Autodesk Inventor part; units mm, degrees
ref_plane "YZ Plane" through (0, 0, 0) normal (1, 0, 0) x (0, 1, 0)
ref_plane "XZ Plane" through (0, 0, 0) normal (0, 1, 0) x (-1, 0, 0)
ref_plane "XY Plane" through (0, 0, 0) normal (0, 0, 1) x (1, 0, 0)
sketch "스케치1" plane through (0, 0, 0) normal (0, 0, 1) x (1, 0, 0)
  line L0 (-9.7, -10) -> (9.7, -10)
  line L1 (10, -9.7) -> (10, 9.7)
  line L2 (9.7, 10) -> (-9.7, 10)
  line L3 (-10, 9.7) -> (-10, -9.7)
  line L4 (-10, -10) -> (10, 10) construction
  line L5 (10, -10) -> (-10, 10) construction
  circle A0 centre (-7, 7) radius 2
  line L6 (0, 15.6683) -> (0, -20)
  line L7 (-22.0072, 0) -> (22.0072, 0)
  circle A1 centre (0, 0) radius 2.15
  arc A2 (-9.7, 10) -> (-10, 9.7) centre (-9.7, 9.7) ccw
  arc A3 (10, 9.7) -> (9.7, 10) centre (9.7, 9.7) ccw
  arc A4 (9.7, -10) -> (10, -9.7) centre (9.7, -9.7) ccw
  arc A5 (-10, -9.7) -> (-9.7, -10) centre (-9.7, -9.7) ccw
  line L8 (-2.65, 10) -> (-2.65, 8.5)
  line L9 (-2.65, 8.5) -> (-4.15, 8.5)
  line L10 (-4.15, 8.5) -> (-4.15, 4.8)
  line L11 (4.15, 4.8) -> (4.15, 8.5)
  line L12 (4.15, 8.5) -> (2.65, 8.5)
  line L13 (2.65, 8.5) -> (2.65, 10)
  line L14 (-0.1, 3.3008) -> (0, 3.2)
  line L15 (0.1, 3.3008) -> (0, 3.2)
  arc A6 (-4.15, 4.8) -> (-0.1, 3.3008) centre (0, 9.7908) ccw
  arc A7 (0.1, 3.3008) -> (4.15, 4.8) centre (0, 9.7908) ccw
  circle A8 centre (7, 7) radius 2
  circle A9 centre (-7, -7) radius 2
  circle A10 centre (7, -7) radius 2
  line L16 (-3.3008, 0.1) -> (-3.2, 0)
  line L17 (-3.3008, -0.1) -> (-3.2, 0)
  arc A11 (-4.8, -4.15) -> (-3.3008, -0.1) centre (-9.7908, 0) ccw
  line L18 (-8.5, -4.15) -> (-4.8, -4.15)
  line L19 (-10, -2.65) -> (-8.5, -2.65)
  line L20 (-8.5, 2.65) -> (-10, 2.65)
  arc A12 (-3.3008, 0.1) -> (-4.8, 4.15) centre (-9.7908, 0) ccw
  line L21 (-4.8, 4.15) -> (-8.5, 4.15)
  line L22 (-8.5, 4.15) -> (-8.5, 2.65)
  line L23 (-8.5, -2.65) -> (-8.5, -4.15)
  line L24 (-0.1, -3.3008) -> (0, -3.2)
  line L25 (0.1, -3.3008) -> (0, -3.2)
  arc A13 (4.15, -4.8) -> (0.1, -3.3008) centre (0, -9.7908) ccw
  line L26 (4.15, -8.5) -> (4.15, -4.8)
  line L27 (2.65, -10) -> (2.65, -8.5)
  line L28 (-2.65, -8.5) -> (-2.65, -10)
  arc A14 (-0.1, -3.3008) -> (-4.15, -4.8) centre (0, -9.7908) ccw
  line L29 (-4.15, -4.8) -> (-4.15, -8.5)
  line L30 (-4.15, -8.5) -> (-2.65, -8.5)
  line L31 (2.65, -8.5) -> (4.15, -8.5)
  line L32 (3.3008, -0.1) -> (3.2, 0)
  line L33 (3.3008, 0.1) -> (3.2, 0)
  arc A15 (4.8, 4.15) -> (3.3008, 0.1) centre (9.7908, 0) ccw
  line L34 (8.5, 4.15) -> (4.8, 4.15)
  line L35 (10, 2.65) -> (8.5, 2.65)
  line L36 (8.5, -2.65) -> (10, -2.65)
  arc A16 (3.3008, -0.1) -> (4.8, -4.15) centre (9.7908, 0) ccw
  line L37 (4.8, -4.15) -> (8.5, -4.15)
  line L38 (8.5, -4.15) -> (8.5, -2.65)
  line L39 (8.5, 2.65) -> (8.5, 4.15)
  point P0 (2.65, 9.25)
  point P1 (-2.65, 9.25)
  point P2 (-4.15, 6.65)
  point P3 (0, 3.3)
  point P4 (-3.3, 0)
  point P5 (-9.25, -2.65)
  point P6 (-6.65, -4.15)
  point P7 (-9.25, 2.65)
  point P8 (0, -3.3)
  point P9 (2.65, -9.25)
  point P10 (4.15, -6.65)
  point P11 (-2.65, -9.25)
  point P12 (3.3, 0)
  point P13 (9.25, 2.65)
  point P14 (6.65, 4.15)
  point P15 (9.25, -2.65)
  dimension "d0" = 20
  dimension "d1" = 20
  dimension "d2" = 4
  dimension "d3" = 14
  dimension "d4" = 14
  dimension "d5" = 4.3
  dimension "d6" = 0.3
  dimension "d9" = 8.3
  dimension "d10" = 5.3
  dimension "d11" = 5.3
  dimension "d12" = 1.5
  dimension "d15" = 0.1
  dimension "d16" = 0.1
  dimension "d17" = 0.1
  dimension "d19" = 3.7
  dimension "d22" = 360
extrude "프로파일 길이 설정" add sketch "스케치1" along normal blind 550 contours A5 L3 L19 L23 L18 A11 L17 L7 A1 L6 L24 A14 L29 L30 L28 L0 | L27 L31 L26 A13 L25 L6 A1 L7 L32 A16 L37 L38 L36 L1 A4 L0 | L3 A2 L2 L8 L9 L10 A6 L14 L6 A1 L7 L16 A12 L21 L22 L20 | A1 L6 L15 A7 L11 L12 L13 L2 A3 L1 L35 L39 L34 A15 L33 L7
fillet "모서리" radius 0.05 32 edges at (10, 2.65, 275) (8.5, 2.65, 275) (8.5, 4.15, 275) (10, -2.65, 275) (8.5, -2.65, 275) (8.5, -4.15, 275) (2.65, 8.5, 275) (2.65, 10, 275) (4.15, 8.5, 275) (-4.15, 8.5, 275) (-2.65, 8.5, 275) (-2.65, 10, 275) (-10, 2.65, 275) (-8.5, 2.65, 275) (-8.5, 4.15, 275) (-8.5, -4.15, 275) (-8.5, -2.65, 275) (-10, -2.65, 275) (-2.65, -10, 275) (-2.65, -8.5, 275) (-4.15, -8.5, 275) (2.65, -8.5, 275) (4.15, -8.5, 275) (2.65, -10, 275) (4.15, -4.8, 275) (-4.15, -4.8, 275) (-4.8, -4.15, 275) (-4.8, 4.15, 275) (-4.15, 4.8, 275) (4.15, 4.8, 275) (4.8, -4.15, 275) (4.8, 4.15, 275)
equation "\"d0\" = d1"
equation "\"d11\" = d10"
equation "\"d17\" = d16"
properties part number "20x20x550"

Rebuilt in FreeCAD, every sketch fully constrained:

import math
import FreeCAD as App
import Part
import Sketcher


def edges_at(feature, points):
    """Names of the edges that pass closest to the given points."""
    edges = feature.Shape.Edges
    near = lambda p: min(range(len(edges)), key=lambda i: edges[i].distToShape(Part.Vertex(*p))[0])
    return sorted({f"Edge{near(p) + 1}" for p in points})

doc = App.newDocument("Part")
params = doc.addObject("Spreadsheet::Sheet", "Params")
for row, (alias, value) in enumerate([
    ("sketch1_diameter", "4 mm"),
    ("sketch1_diameter2", "4.3 mm"),
    ("sketch1_radius", "0.3 mm"),
    ("sketch1_width", "1.5 mm"),
    ("sketch1_width2", "3.7 mm"),
    ("pad1_length", "550 mm"),
    ("fillet_radius", "0.05 mm"),
], start=1):
    params.set(f"A{row}", alias)
    params.set(f"B{row}", "=" + value)
    params.setAlias(f"B{row}", alias)

body = doc.addObject("PartDesign::Body", "Body")

sketch1 = body.newObject("Sketcher::SketchObject", "Sketch")
sketch1.AttachmentSupport = (doc.getObject("XY_Plane"), [""])
sketch1.MapMode = "FlatFace"
sketch1.addGeometry([
    Part.ArcOfCircle(Part.Circle(App.Vector(-9.7, -9.7, 0), App.Vector(0, 0, 1), 0.3), math.radians(180), math.radians(270)),
    Part.LineSegment(App.Vector(-9.7, -10, 0), App.Vector(-2.65, -10, 0)),
    Part.LineSegment(App.Vector(-2.65, -10, 0), App.Vector(-2.65, -8.5, 0)),
    Part.LineSegment(App.Vector(-2.65, -8.5, 0), App.Vector(-4.15, -8.5, 0)),
    Part.LineSegment(App.Vector(-4.15, -8.5, 0), App.Vector(-4.15, -4.8, 0)),
    Part.ArcOfCircle(Part.Circle(App.Vector(0, -9.7908, 0), App.Vector(0, 0, 1), 6.490808), math.radians(90.882762), math.radians(129.74454)),
    Part.LineSegment(App.Vector(-0.1, -3.3008, 0), App.Vector(0, -3.2, 0)),
    Part.LineSegment(App.Vector(0, -3.2, 0), App.Vector(0.1, -3.3008, 0)),
    Part.ArcOfCircle(Part.Circle(App.Vector(0, -9.7908, 0), App.Vector(0, 0, 1), 6.49077), math.radians(50.25546), math.radians(89.117238)),
    Part.LineSegment(App.Vector(4.15, -4.8, 0), App.Vector(4.15, -8.5, 0)),
    Part.LineSegment(App.Vector(4.15, -8.5, 0), App.Vector(2.65, -8.5, 0)),
    Part.LineSegment(App.Vector(2.65, -8.5, 0), App.Vector(2.65, -10, 0)),
    Part.LineSegment(App.Vector(2.65, -10, 0), App.Vector(9.7, -10, 0)),
    Part.ArcOfCircle(Part.Circle(App.Vector(9.7, -9.7, 0), App.Vector(0, 0, 1), 0.3), math.radians(-90), math.radians(0)),
    Part.LineSegment(App.Vector(10, -9.7, 0), App.Vector(10, -2.65, 0)),
    Part.LineSegment(App.Vector(10, -2.65, 0), App.Vector(8.5, -2.65, 0)),
    Part.LineSegment(App.Vector(8.5, -2.65, 0), App.Vector(8.5, -4.15, 0)),
    Part.LineSegment(App.Vector(8.5, -4.15, 0), App.Vector(4.8, -4.15, 0)),
    Part.ArcOfCircle(Part.Circle(App.Vector(9.7908, 0, 0), App.Vector(0, 0, 1), 6.490808), math.radians(-179.117238), math.radians(-140.25546)),
    Part.LineSegment(App.Vector(3.3008, -0.1, 0), App.Vector(3.2, 0, 0)),
    Part.LineSegment(App.Vector(3.2, 0, 0), App.Vector(3.3008, 0.1, 0)),
    Part.ArcOfCircle(Part.Circle(App.Vector(9.7908, 0, 0), App.Vector(0, 0, 1), 6.49077), math.radians(140.25546), math.radians(179.117238)),
    Part.LineSegment(App.Vector(4.8, 4.15, 0), App.Vector(8.5, 4.15, 0)),
    Part.LineSegment(App.Vector(8.5, 4.15, 0), App.Vector(8.5, 2.65, 0)),
    Part.LineSegment(App.Vector(8.5, 2.65, 0), App.Vector(10, 2.65, 0)),
    Part.LineSegment(App.Vector(10, 2.65, 0), App.Vector(10, 9.7, 0)),
    Part.ArcOfCircle(Part.Circle(App.Vector(9.7, 9.7, 0), App.Vector(0, 0, 1), 0.3), math.radians(0), math.radians(90)),
    Part.LineSegment(App.Vector(9.7, 10, 0), App.Vector(2.65, 10, 0)),
    Part.LineSegment(App.Vector(2.65, 10, 0), App.Vector(2.65, 8.5, 0)),
    Part.LineSegment(App.Vector(2.65, 8.5, 0), App.Vector(4.15, 8.5, 0)),
    Part.LineSegment(App.Vector(4.15, 8.5, 0), App.Vector(4.15, 4.8, 0)),
    Part.ArcOfCircle(Part.Circle(App.Vector(0, 9.7908, 0), App.Vector(0, 0, 1), 6.490808), math.radians(-89.117238), math.radians(-50.25546)),
    Part.LineSegment(App.Vector(0.1, 3.3008, 0), App.Vector(0, 3.2, 0)),
    Part.LineSegment(App.Vector(0, 3.2, 0), App.Vector(-0.1, 3.3008, 0)),
    Part.ArcOfCircle(Part.Circle(App.Vector(0, 9.7908, 0), App.Vector(0, 0, 1), 6.49077), math.radians(-129.74454), math.radians(-90.882762)),
    Part.LineSegment(App.Vector(-4.15, 4.8, 0), App.Vector(-4.15, 8.5, 0)),
    Part.LineSegment(App.Vector(-4.15, 8.5, 0), App.Vector(-2.65, 8.5, 0)),
    Part.LineSegment(App.Vector(-2.65, 8.5, 0), App.Vector(-2.65, 10, 0)),
    Part.LineSegment(App.Vector(-2.65, 10, 0), App.Vector(-9.7, 10, 0)),
    Part.ArcOfCircle(Part.Circle(App.Vector(-9.7, 9.7, 0), App.Vector(0, 0, 1), 0.3), math.radians(90), math.radians(180)),
    Part.LineSegment(App.Vector(-10, 9.7, 0), App.Vector(-10, 2.65, 0)),
    Part.LineSegment(App.Vector(-10, 2.65, 0), App.Vector(-8.5, 2.65, 0)),
    Part.LineSegment(App.Vector(-8.5, 2.65, 0), App.Vector(-8.5, 4.15, 0)),
    Part.LineSegment(App.Vector(-8.5, 4.15, 0), App.Vector(-4.8, 4.15, 0)),
    Part.ArcOfCircle(Part.Circle(App.Vector(-9.7908, 0, 0), App.Vector(0, 0, 1), 6.490808), math.radians(0.882762), math.radians(39.74454)),
    Part.LineSegment(App.Vector(-3.3008, 0.1, 0), App.Vector(-3.2, 0, 0)),
    Part.LineSegment(App.Vector(-3.2, 0, 0), App.Vector(-3.3008, -0.1, 0)),
    Part.ArcOfCircle(Part.Circle(App.Vector(-9.7908, 0, 0), App.Vector(0, 0, 1), 6.49077), math.radians(-39.74454), math.radians(-0.882762)),
    Part.LineSegment(App.Vector(-4.8, -4.15, 0), App.Vector(-8.5, -4.15, 0)),
    Part.LineSegment(App.Vector(-8.5, -4.15, 0), App.Vector(-8.5, -2.65, 0)),
    Part.LineSegment(App.Vector(-8.5, -2.65, 0), App.Vector(-10, -2.65, 0)),
    Part.LineSegment(App.Vector(-10, -2.65, 0), App.Vector(-10, -9.7, 0)),
    Part.Circle(App.Vector(0, 0, 0), App.Vector(0, 0, 1), 2.15),
    Part.Circle(App.Vector(-7, -7, 0), App.Vector(0, 0, 1), 2),
    Part.Circle(App.Vector(-7, 7, 0), App.Vector(0, 0, 1), 2),
    Part.Circle(App.Vector(7, -7, 0), App.Vector(0, 0, 1), 2),
    Part.Circle(App.Vector(7, 7, 0), App.Vector(0, 0, 1), 2),
], False)
sketch1.addConstraint([
    Sketcher.Constraint("Tangent", 0, 2, 1, 1),
    Sketcher.Constraint("Coincident", 1, 2, 2, 1),
    Sketcher.Constraint("Coincident", 2, 2, 3, 1),
    Sketcher.Constraint("Coincident", 3, 2, 4, 1),
    Sketcher.Constraint("Coincident", 4, 2, 5, 2),
    Sketcher.Constraint("Coincident", 5, 1, 6, 1),
    Sketcher.Constraint("Coincident", 6, 2, 7, 1),
    Sketcher.Constraint("Coincident", 7, 2, 8, 2),
    Sketcher.Constraint("Coincident", 8, 1, 9, 1),
    Sketcher.Constraint("Coincident", 9, 2, 10, 1),
    Sketcher.Constraint("Coincident", 10, 2, 11, 1),
    Sketcher.Constraint("Coincident", 11, 2, 12, 1),
    Sketcher.Constraint("Tangent", 12, 2, 13, 1),
    Sketcher.Constraint("Tangent", 13, 2, 14, 1),
    Sketcher.Constraint("Coincident", 14, 2, 15, 1),
    Sketcher.Constraint("Coincident", 15, 2, 16, 1),
    Sketcher.Constraint("Coincident", 16, 2, 17, 1),
    Sketcher.Constraint("Coincident", 17, 2, 18, 2),
    Sketcher.Constraint("Coincident", 18, 1, 19, 1),
    Sketcher.Constraint("Coincident", 19, 2, 20, 1),
    Sketcher.Constraint("Coincident", 20, 2, 21, 2),
    Sketcher.Constraint("Coincident", 21, 1, 22, 1),
    Sketcher.Constraint("Coincident", 22, 2, 23, 1),
    Sketcher.Constraint("Coincident", 23, 2, 24, 1),
    Sketcher.Constraint("Coincident", 24, 2, 25, 1),
    Sketcher.Constraint("Tangent", 25, 2, 26, 1),
    Sketcher.Constraint("Tangent", 26, 2, 27, 1),
    Sketcher.Constraint("Coincident", 27, 2, 28, 1),
    Sketcher.Constraint("Coincident", 28, 2, 29, 1),
    Sketcher.Constraint("Coincident", 29, 2, 30, 1),
    Sketcher.Constraint("Coincident", 30, 2, 31, 2),
    Sketcher.Constraint("Coincident", 31, 1, 32, 1),
    Sketcher.Constraint("Coincident", 32, 2, 33, 1),
    Sketcher.Constraint("Coincident", 33, 2, 34, 2),
    Sketcher.Constraint("Coincident", 34, 1, 35, 1),
    Sketcher.Constraint("Coincident", 35, 2, 36, 1),
    Sketcher.Constraint("Coincident", 36, 2, 37, 1),
    Sketcher.Constraint("Coincident", 37, 2, 38, 1),
    Sketcher.Constraint("Tangent", 38, 2, 39, 1),
    Sketcher.Constraint("Tangent", 39, 2, 40, 1),
    Sketcher.Constraint("Coincident", 40, 2, 41, 1),
    Sketcher.Constraint("Coincident", 41, 2, 42, 1),
    Sketcher.Constraint("Coincident", 42, 2, 43, 1),
    Sketcher.Constraint("Coincident", 43, 2, 44, 2),
    Sketcher.Constraint("Coincident", 44, 1, 45, 1),
    Sketcher.Constraint("Coincident", 45, 2, 46, 1),
    Sketcher.Constraint("Coincident", 46, 2, 47, 2),
    Sketcher.Constraint("Coincident", 47, 1, 48, 1),
    Sketcher.Constraint("Coincident", 48, 2, 49, 1),
    Sketcher.Constraint("Coincident", 49, 2, 50, 1),
    Sketcher.Constraint("Coincident", 50, 2, 51, 1),
    Sketcher.Constraint("Tangent", 51, 2, 0, 1),
    Sketcher.Constraint("Horizontal", 1),
    Sketcher.Constraint("Vertical", 2),
    Sketcher.Constraint("Horizontal", 3),
    Sketcher.Constraint("Vertical", 4),
    Sketcher.Constraint("Vertical", 9),
    Sketcher.Constraint("Horizontal", 10),
    Sketcher.Constraint("Vertical", 11),
    Sketcher.Constraint("Horizontal", 12),
    Sketcher.Constraint("Vertical", 14),
    Sketcher.Constraint("Horizontal", 15),
    Sketcher.Constraint("Vertical", 16),
    Sketcher.Constraint("Horizontal", 17),
    Sketcher.Constraint("Horizontal", 22),
    Sketcher.Constraint("Vertical", 23),
    Sketcher.Constraint("Horizontal", 24),
    Sketcher.Constraint("Vertical", 25),
    Sketcher.Constraint("Horizontal", 27),
    Sketcher.Constraint("Vertical", 28),
    Sketcher.Constraint("Horizontal", 29),
    Sketcher.Constraint("Vertical", 30),
    Sketcher.Constraint("Vertical", 35),
    Sketcher.Constraint("Horizontal", 36),
    Sketcher.Constraint("Vertical", 37),
    Sketcher.Constraint("Horizontal", 38),
    Sketcher.Constraint("Vertical", 40),
    Sketcher.Constraint("Horizontal", 41),
    Sketcher.Constraint("Vertical", 42),
    Sketcher.Constraint("Horizontal", 43),
    Sketcher.Constraint("Horizontal", 48),
    Sketcher.Constraint("Vertical", 49),
    Sketcher.Constraint("Horizontal", 50),
    Sketcher.Constraint("Vertical", 51),
    Sketcher.Constraint("Coincident", 52, 3, -1, 1),
    Sketcher.Constraint("Coincident", 8, 3, 5, 3),
    Sketcher.Constraint("Coincident", 21, 3, 18, 3),
    Sketcher.Constraint("Coincident", 34, 3, 31, 3),
    Sketcher.Constraint("Coincident", 47, 3, 44, 3),
    Sketcher.Constraint("Equal", 5, 8),
    Sketcher.Constraint("Equal", 0, 13),
    Sketcher.Constraint("Equal", 8, 18),
    Sketcher.Constraint("Equal", 18, 21),
    Sketcher.Constraint("Equal", 13, 26),
    Sketcher.Constraint("Equal", 21, 31),
    Sketcher.Constraint("Equal", 31, 34),
    Sketcher.Constraint("Equal", 26, 39),
    Sketcher.Constraint("Equal", 34, 44),
    Sketcher.Constraint("Equal", 44, 47),
    Sketcher.Constraint("Equal", 53, 54),
    Sketcher.Constraint("Equal", 54, 55),
    Sketcher.Constraint("Equal", 55, 56),
    Sketcher.Constraint("Symmetric", 0, 3, 26, 3, -1, 1),
    Sketcher.Constraint("Symmetric", 5, 3, 31, 3, -1, 1),
    Sketcher.Constraint("Symmetric", 13, 3, 39, 3, -1, 1),
    Sketcher.Constraint("Symmetric", 18, 3, 44, 3, -1, 1),
    Sketcher.Constraint("Symmetric", 54, 3, 55, 3, -1, 1),
    Sketcher.Constraint("Symmetric", 53, 3, 56, 3, -1, 1),
    Sketcher.Constraint("Symmetric", 2, 2, 28, 2, -1, 1),
    Sketcher.Constraint("Symmetric", 6, 2, 32, 2, -1, 1),
    Sketcher.Constraint("Symmetric", 9, 2, 35, 2, -1, 1),
    Sketcher.Constraint("Symmetric", 15, 2, 41, 2, -1, 1),
    Sketcher.Constraint("Symmetric", 19, 2, 45, 2, -1, 1),
    Sketcher.Constraint("Symmetric", 22, 2, 48, 2, -1, 1),
    Sketcher.Constraint("Symmetric", 0, 3, 13, 3, -2),
    Sketcher.Constraint("Symmetric", 53, 3, 55, 3, -2),
    Sketcher.Constraint("Symmetric", 5, 1, 7, 2, -2),
    Sketcher.Constraint("Symmetric", 3, 2, 9, 2, -2),
    Sketcher.Constraint("Symmetric", 23, 2, 41, 2, -2),
    Sketcher.Constraint("Symmetric", 21, 1, 43, 2, -2),
    Sketcher.Constraint("PointOnObject", 6, 2, -2),
    Sketcher.Constraint("PointOnObject", 19, 2, -1),
    Sketcher.Constraint("Perpendicular", 6, 19),
    Sketcher.Constraint("Perpendicular", 7, 20),
    Sketcher.Constraint("Perpendicular", 19, 32),
    Sketcher.Constraint("Perpendicular", 20, 33),
    Sketcher.Constraint("Perpendicular", 32, 45),
    Sketcher.Constraint("Perpendicular", 33, 46),
    Sketcher.Constraint("Horizontal", 30, 2, 34, 1),
    Sketcher.Constraint("Horizontal", 17, 2, 47, 1),
    Sketcher.Constraint("Horizontal", 15, 2, 49, 2),
    Sketcher.Constraint("Vertical", 11, 2, 27, 2),
    Sketcher.Constraint("Vertical", 2, 2, 36, 2),
    Sketcher.Constraint("Equal", 10, 15),
    Sketcher.Constraint("Equal", 50, 2),
    Sketcher.Constraint("Equal", 48, 4),
    Sketcher.Constraint("Equal", 38, 14),
    Sketcher.Constraint("Equal", 11, 16),
    Sketcher.Constraint("Equal", 7, 19),
    Sketcher.Constraint("Diameter", 53, 4.0),
    Sketcher.Constraint("Diameter", 52, 4.3),
    Sketcher.Constraint("Radius", 0, 0.3),
    Sketcher.Constraint("DistanceX", 3, 2, 3, 1, 1.5),
    Sketcher.Constraint("DistanceX", 17, 2, 17, 1, 3.7),
    Sketcher.Constraint("DistanceX", 5, 1, -1, 1, 0.1),
    Sketcher.Constraint("DistanceX", 53, 3, -1, 1, 7.0),
    Sketcher.Constraint("DistanceY", 53, 3, -1, 1, 7.0),
    Sketcher.Constraint("DistanceY", 0, 2, -1, 1, 10.0),
    Sketcher.Constraint("DistanceX", -1, 1, 13, 2, 10.0),
    Sketcher.Constraint("DistanceX", 1, 1, 1, 2, 7.05),
    Sketcher.Constraint("DistanceY", 6, 2, -1, 1, 3.2),
    Sketcher.Constraint("Radius", 5, 6.4908),
])
sketch1.setExpression("Constraints[139]", "Params.sketch1_diameter")
sketch1.setExpression("Constraints[140]", "Params.sketch1_diameter2")
sketch1.setExpression("Constraints[141]", "Params.sketch1_radius")
sketch1.setExpression("Constraints[142]", "Params.sketch1_width")
sketch1.setExpression("Constraints[143]", "Params.sketch1_width2")
pad1 = body.newObject("PartDesign::Pad", "Pad")
pad1.Profile = sketch1
pad1.setExpression("Length", "Params.pad1_length")
doc.recompute()

fillet = body.newObject("PartDesign::Fillet", "Fillet")
fillet.Base = (pad1, edges_at(pad1, [
    (10, 2.65, 275),
    (8.5, 2.65, 275),
    (8.5, 4.15, 275),
    (10, -2.65, 275),
    (8.5, -2.65, 275),
    (8.5, -4.15, 275),
    (2.65, 8.5, 275),
    (2.65, 10, 275),
    (4.15, 8.5, 275),
    (-4.15, 8.5, 275),
    (-2.65, 8.5, 275),
    (-2.65, 10, 275),
    (-10, 2.65, 275),
    (-8.5, 2.65, 275),
    (-8.5, 4.15, 275),
    (-8.5, -4.15, 275),
    (-8.5, -2.65, 275),
    (-10, -2.65, 275),
    (-2.65, -10, 275),
    (-2.65, -8.5, 275),
    (-4.15, -8.5, 275),
    (2.65, -8.5, 275),
    (4.15, -8.5, 275),
    (2.65, -10, 275),
    (4.15, -4.8, 275),
    (-4.15, -4.8, 275),
    (-4.8, -4.15, 275),
    (-4.8, 4.15, 275),
    (-4.15, 4.8, 275),
    (4.15, 4.8, 275),
    (4.8, -4.15, 275),
    (4.8, 4.15, 275),
]))
fillet.setExpression("Radius", "Params.fillet_radius")

doc.recompute()
